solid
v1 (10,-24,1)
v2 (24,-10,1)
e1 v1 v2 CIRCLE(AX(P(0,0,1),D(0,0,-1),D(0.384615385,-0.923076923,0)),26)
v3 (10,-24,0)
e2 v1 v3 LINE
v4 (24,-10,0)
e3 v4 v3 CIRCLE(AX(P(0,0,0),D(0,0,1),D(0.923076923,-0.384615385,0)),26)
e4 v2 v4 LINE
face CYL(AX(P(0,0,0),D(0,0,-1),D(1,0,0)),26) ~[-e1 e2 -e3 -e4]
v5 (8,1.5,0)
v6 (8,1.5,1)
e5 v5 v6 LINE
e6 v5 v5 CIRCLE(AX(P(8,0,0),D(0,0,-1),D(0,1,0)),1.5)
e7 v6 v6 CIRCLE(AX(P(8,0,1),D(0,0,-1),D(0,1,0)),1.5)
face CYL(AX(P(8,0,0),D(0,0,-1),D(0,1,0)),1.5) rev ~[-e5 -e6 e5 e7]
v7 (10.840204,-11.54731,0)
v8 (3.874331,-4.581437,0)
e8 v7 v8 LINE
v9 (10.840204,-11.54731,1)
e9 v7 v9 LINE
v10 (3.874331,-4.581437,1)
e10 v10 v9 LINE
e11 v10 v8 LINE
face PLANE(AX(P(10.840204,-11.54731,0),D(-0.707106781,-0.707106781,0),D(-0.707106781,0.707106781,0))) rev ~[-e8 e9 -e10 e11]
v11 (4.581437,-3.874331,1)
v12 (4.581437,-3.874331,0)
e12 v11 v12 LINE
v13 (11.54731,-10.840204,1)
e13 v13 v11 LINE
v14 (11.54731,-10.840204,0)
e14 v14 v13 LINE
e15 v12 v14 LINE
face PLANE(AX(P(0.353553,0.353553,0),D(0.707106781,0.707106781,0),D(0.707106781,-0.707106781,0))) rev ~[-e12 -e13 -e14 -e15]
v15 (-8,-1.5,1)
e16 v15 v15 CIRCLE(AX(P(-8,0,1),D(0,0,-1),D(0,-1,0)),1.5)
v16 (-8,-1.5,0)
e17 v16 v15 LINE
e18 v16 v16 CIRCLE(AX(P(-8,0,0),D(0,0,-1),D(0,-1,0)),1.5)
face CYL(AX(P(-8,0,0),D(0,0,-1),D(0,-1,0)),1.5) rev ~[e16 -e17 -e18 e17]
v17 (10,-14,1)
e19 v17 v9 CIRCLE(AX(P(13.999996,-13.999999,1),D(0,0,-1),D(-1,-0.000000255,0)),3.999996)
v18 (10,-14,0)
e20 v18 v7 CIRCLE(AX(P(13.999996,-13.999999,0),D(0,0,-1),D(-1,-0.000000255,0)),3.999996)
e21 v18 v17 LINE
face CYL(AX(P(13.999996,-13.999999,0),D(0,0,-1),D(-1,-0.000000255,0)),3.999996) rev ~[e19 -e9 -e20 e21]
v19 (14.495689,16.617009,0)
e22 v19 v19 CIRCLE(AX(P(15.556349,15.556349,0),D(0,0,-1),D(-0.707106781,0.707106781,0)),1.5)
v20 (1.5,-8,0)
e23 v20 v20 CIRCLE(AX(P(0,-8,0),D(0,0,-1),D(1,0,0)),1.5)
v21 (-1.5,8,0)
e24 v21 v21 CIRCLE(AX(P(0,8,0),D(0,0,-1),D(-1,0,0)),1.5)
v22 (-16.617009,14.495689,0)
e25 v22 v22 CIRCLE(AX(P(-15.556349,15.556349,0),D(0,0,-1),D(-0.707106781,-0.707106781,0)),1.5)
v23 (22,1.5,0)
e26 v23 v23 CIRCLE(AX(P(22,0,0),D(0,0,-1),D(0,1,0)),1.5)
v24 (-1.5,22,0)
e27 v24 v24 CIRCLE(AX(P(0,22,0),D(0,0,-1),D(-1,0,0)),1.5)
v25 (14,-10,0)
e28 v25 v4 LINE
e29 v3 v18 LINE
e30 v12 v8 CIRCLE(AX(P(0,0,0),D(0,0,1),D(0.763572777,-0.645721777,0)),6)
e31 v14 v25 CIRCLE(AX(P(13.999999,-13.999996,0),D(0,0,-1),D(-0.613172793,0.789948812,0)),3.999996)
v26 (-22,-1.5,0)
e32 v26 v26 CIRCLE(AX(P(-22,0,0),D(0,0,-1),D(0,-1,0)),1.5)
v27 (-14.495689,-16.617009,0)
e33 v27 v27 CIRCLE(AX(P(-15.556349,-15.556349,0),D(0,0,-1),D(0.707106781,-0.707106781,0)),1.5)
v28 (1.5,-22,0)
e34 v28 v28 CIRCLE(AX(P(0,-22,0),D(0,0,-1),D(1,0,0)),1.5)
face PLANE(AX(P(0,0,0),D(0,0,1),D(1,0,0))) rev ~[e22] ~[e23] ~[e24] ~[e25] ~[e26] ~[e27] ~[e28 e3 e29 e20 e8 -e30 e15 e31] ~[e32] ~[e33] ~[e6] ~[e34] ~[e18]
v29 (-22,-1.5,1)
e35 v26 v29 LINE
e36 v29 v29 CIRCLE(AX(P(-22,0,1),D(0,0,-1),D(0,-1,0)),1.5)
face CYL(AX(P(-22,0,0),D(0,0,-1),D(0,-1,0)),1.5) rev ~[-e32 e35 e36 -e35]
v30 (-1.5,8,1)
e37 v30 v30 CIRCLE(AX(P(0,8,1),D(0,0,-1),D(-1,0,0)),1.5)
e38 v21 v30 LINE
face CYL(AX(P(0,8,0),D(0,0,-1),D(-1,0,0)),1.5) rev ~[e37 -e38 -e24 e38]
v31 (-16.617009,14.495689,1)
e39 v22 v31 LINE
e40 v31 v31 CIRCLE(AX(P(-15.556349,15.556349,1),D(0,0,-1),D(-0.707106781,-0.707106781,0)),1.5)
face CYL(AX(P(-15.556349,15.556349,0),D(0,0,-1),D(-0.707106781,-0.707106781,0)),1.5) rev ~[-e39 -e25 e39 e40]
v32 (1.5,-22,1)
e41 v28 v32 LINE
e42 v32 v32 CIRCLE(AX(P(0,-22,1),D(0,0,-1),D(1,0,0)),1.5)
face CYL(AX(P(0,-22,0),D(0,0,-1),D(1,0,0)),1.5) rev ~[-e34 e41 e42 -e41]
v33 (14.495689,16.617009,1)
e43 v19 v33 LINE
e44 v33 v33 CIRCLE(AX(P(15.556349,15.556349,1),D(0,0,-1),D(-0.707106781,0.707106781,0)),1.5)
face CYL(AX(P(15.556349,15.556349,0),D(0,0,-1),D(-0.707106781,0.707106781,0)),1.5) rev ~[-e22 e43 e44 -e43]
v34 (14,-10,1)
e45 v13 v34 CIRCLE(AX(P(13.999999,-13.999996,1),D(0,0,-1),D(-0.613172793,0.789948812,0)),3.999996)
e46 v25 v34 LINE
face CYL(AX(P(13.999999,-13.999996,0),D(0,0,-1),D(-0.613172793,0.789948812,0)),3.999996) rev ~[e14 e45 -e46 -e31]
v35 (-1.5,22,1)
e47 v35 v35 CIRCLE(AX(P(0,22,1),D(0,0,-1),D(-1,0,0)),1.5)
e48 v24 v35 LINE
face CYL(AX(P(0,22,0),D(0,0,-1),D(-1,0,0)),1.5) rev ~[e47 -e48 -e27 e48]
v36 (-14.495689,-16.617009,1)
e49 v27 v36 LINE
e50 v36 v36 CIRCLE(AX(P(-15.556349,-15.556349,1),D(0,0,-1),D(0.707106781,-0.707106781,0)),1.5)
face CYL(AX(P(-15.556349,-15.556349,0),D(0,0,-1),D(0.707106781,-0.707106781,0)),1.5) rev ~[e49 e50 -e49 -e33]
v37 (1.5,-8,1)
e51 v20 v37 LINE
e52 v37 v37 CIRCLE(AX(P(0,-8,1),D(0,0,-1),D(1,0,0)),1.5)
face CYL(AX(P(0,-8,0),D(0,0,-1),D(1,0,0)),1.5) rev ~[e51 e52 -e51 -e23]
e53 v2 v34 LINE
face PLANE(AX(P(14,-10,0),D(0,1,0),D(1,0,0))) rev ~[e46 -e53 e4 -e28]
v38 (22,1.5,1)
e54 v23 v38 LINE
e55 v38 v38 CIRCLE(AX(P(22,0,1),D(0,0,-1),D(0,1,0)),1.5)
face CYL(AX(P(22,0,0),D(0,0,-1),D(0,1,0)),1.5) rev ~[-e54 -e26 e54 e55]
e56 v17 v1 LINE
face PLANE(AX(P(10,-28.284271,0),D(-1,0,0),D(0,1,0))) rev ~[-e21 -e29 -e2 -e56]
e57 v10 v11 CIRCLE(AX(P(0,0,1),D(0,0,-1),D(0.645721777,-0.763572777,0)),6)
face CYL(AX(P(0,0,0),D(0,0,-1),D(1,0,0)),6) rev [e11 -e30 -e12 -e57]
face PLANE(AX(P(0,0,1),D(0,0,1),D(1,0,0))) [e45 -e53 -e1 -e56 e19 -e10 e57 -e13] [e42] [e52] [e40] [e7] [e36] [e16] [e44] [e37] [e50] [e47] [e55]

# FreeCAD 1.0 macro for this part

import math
import FreeCAD as App
import Part
import Sketcher

V = App.Vector

doc = App.newDocument("Part")
params = doc.addObject("Spreadsheet::Sheet", "Params")
for row, (alias, value) in enumerate([
    ("sketch1_diameter", "52 mm"),
    ("sketch1_diameter2", "12 mm"),
    ("pad1_length", "1 mm"),
    ("sketch2_diameter", "3 mm"),
    ("sketch3_diameter", "3 mm"),
    ("sketch4_length", "0.999999 mm"),
], start=1):
    params.set(f"A{row}", alias)
    params.set(f"B{row}", "=" + value)
    params.setAlias(f"B{row}", alias)

body = doc.addObject("PartDesign::Body", "Body")

# Sketch on XY plane
sketch1 = body.newObject("Sketcher::SketchObject", "Sketch")
sketch1.AttachmentSupport = (doc.getObject("XY_Plane"), [""])
sketch1.MapMode = "FlatFace"
sketch1.addGeometry(Part.Circle(V(0, 0, 0), V(0, 0, 1), 26), False)
sketch1.addGeometry(Part.Circle(V(0, 0, 0), V(0, 0, 1), 6), False)
sketch1.addConstraint(Sketcher.Constraint("Coincident", 0, 3, -1, 1))
sketch1.addConstraint(Sketcher.Constraint("Coincident", 1, 3, -1, 1))
sketch1.addConstraint(Sketcher.Constraint("Diameter", 0, 52.0))
sketch1.addConstraint(Sketcher.Constraint("Diameter", 1, 12.0))
sketch1.setExpression("Constraints[2]", "Params.sketch1_diameter")
sketch1.setExpression("Constraints[3]", "Params.sketch1_diameter2")
pad1 = body.newObject("PartDesign::Pad", "Pad")
pad1.Profile = sketch1
pad1.setExpression("Length", "Params.pad1_length")

# Sketch on XY plane
sketch2 = body.newObject("Sketcher::SketchObject", "Sketch001")
sketch2.AttachmentSupport = (doc.getObject("XY_Plane"), [""])
sketch2.MapMode = "FlatFace"
sketch2.addGeometry(Part.Circle(V(0, -8, 0), V(0, 0, 1), 1.5), False)
sketch2.addConstraint(Sketcher.Constraint("PointOnObject", 0, 3, -2))
sketch2.addConstraint(Sketcher.Constraint("Diameter", 0, 3.0))
sketch2.addConstraint(Sketcher.Constraint("DistanceY", 0, 3, -1, 1, 8.0))
sketch2.setExpression("Constraints[1]", "Params.sketch2_diameter")
pocket1 = body.newObject("PartDesign::Pocket", "Pocket")
pocket1.Profile = sketch2
pocket1.Type = "ThroughAll"
pocket1.Reversed = True
doc.recompute()

polarpattern = body.newObject("PartDesign::PolarPattern", "PolarPattern")
polarpattern.Originals = [pocket1]
polarpattern.Axis = (doc.getObject("Z_Axis"), [""])
polarpattern.Angle = 360
polarpattern.Occurrences = 4
body.Tip = polarpattern

# Sketch on XY plane
sketch3 = body.newObject("Sketcher::SketchObject", "Sketch002")
sketch3.AttachmentSupport = (doc.getObject("XY_Plane"), [""])
sketch3.MapMode = "FlatFace"
sketch3.addGeometry(Part.Circle(V(0, -22, 0), V(0, 0, 1), 1.5), False)
sketch3.addConstraint(Sketcher.Constraint("PointOnObject", 0, 3, -2))
sketch3.addConstraint(Sketcher.Constraint("Diameter", 0, 3.0))
sketch3.addConstraint(Sketcher.Constraint("DistanceY", 0, 3, -1, 1, 22.0))
sketch3.setExpression("Constraints[1]", "Params.sketch3_diameter")
pocket2 = body.newObject("PartDesign::Pocket", "Pocket001")
pocket2.Profile = sketch3
pocket2.Type = "ThroughAll"
pocket2.Reversed = True
doc.recompute()

polarpattern2 = body.newObject("PartDesign::PolarPattern", "PolarPattern001")
polarpattern2.Originals = [pocket2]
polarpattern2.Axis = (doc.getObject("Z_Axis"), [""])
polarpattern2.Angle = 270
polarpattern2.Occurrences = 7
polarpattern2.Reversed = True
body.Tip = polarpattern2

# Sketch on XY plane
sketch4 = body.newObject("Sketcher::SketchObject", "Sketch003")
sketch4.AttachmentSupport = (doc.getObject("XY_Plane"), [""])
sketch4.MapMode = "FlatFace"
sketch4.addGeometry(Part.LineSegment(V(10, -28.284271, 0), V(10, -14, 0)), False)
sketch4.addGeometry(Part.ArcOfCircle(Part.Circle(V(13.999996, -13.999999, 0), V(0, 0, 1), 3.999996), math.radians(142.180728), math.radians(180.000015)), False)
sketch4.addGeometry(Part.LineSegment(V(10.840204, -11.54731, 0), V(-0.353553, -0.353553, 0)), False)
sketch4.addGeometry(Part.LineSegment(V(-0.353553, -0.353553, 0), V(0.353553, 0.353553, 0)), False)
sketch4.addGeometry(Part.LineSegment(V(0.353553, 0.353553, 0), V(11.54731, -10.840204, 0)), False)
sketch4.addGeometry(Part.ArcOfCircle(Part.Circle(V(13.999999, -13.999996, 0), V(0, 0, 1), 3.999996), math.radians(89.999985), math.radians(127.819272)), False)
sketch4.addGeometry(Part.LineSegment(V(14, -10, 0), V(28.284271, -10, 0)), False)
sketch4.addGeometry(Part.ArcOfCircle(Part.Circle(V(-0.000003, 0.000003, 0), V(0, 0, 1), 30.000003), math.radians(-70.528776), math.radians(-19.471224)), False)
sketch4.addConstraint(Sketcher.Constraint("Tangent", 0, 2, 1, 2))
sketch4.addConstraint(Sketcher.Constraint("Coincident", 1, 1, 2, 1))
sketch4.addConstraint(Sketcher.Constraint("Coincident", 2, 2, 3, 1))
sketch4.addConstraint(Sketcher.Constraint("Coincident", 3, 2, 4, 1))
sketch4.addConstraint(Sketcher.Constraint("Coincident", 4, 2, 5, 2))
sketch4.addConstraint(Sketcher.Constraint("Tangent", 5, 1, 6, 1))
sketch4.addConstraint(Sketcher.Constraint("Coincident", 6, 2, 7, 2))
sketch4.addConstraint(Sketcher.Constraint("Coincident", 7, 1, 0, 1))
sketch4.addConstraint(Sketcher.Constraint("Vertical", 0))
sketch4.addConstraint(Sketcher.Constraint("Horizontal", 6))
sketch4.addConstraint(Sketcher.Constraint("Coincident", 7, 3, -1, 1))
sketch4.addConstraint(Sketcher.Constraint("Coincident", 5, 3, 1, 3))
sketch4.addConstraint(Sketcher.Constraint("Equal", 1, 5))
sketch4.addConstraint(Sketcher.Constraint("Symmetric", 2, 2, 3, 2, -1, 1))
sketch4.addConstraint(Sketcher.Constraint("Perpendicular", 2, 3))
sketch4.addConstraint(Sketcher.Constraint("Perpendicular", 3, 4))
sketch4.addConstraint(Sketcher.Constraint("Equal", 6, 0))
sketch4.addConstraint(Sketcher.Constraint("Equal", 2, 4))
sketch4.addConstraint(Sketcher.Constraint("Distance", 3, 0.999999))
sketch4.addConstraint(Sketcher.Constraint("DistanceY", 1, 3, -1, 1, 13.999999))
sketch4.addConstraint(Sketcher.Constraint("DistanceX", -1, 1, 0, 2, 10.0))
sketch4.addConstraint(Sketcher.Constraint("Radius", 7, 30.000003))
sketch4.setExpression("Constraints[18]", "Params.sketch4_length")
pocket3 = body.newObject("PartDesign::Pocket", "Pocket002")
pocket3.Profile = sketch4
pocket3.Type = "ThroughAll"
pocket3.Reversed = True

doc.recompute()
